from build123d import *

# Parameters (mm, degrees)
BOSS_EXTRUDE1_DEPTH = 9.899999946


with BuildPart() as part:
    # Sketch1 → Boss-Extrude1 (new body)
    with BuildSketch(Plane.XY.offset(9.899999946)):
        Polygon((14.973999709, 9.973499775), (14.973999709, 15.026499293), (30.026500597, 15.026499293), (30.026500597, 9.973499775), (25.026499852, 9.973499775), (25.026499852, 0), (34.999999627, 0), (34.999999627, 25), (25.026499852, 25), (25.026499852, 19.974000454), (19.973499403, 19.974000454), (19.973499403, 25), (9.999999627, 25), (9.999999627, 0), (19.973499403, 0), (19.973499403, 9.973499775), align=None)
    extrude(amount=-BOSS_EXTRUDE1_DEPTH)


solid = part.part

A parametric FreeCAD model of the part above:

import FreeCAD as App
import Part
import Sketcher
from FreeCAD import Vector

doc = App.newDocument("Part")
body = doc.addObject("PartDesign::Body", "Body")

# Sketch on XY plane
sketch1 = body.newObject("Sketcher::SketchObject", "Sketch")
sketch1.AttachmentSupport = (doc.getObject("XY_Plane"), [""])
sketch1.MapMode = "FlatFace"
sketch1.AttachmentOffset = App.Placement(Vector(0, 0, 9.9), App.Rotation())
sketch1.addGeometry([
    Part.LineSegment(Vector(15, 10, 0), Vector(15, 15, 0)),  # 0
    Part.LineSegment(Vector(15, 15, 0), Vector(30, 15, 0)),  # 1
    Part.LineSegment(Vector(30, 15, 0), Vector(30, 10, 0)),  # 2
    Part.LineSegment(Vector(30, 10, 0), Vector(25, 10, 0)),  # 3
    Part.LineSegment(Vector(25, 10, 0), Vector(25, 0, 0)),  # 4
    Part.LineSegment(Vector(25, 0, 0), Vector(35, 0, 0)),  # 5
    Part.LineSegment(Vector(35, 0, 0), Vector(35, 25, 0)),  # 6
    Part.LineSegment(Vector(35, 25, 0), Vector(25, 25, 0)),  # 7
    Part.LineSegment(Vector(25, 25, 0), Vector(25, 20, 0)),  # 8
    Part.LineSegment(Vector(25, 20, 0), Vector(20, 20, 0)),  # 9
    Part.LineSegment(Vector(20, 20, 0), Vector(20, 25, 0)),  # 10
    Part.LineSegment(Vector(20, 25, 0), Vector(10, 25, 0)),  # 11
    Part.LineSegment(Vector(10, 25, 0), Vector(10, 0, 0)),  # 12
    Part.LineSegment(Vector(10, 0, 0), Vector(20, 0, 0)),  # 13
    Part.LineSegment(Vector(20, 0, 0), Vector(20, 10, 0)),  # 14
    Part.LineSegment(Vector(20, 10, 0), Vector(15, 10, 0)),  # 15
], False)
sketch1.addConstraint([
    Sketcher.Constraint("Coincident", 0, 2, 1, 1),
    Sketcher.Constraint("Coincident", 1, 2, 2, 1),
    Sketcher.Constraint("Coincident", 2, 2, 3, 1),
    Sketcher.Constraint("Coincident", 3, 2, 4, 1),
    Sketcher.Constraint("Coincident", 4, 2, 5, 1),
    Sketcher.Constraint("Coincident", 5, 2, 6, 1),
    Sketcher.Constraint("Coincident", 6, 2, 7, 1),
    Sketcher.Constraint("Coincident", 7, 2, 8, 1),
    Sketcher.Constraint("Coincident", 8, 2, 9, 1),
    Sketcher.Constraint("Coincident", 9, 2, 10, 1),
    Sketcher.Constraint("Coincident", 10, 2, 11, 1),
    Sketcher.Constraint("Coincident", 11, 2, 12, 1),
    Sketcher.Constraint("Coincident", 12, 2, 13, 1),
    Sketcher.Constraint("Coincident", 13, 2, 14, 1),
    Sketcher.Constraint("Coincident", 14, 2, 15, 1),
    Sketcher.Constraint("Coincident", 15, 2, 0, 1),
    Sketcher.Constraint("Vertical", 0),
    Sketcher.Constraint("Horizontal", 1),
    Sketcher.Constraint("Vertical", 2),
    Sketcher.Constraint("Horizontal", 3),
    Sketcher.Constraint("Vertical", 4),
    Sketcher.Constraint("Horizontal", 5),
    Sketcher.Constraint("Vertical", 6),
    Sketcher.Constraint("Horizontal", 7),
    Sketcher.Constraint("Vertical", 8),
    Sketcher.Constraint("Horizontal", 9),
    Sketcher.Constraint("Vertical", 10),
    Sketcher.Constraint("Horizontal", 11),
    Sketcher.Constraint("Vertical", 12),
    Sketcher.Constraint("Horizontal", 13),
    Sketcher.Constraint("Vertical", 14),
    Sketcher.Constraint("Horizontal", 15),
    Sketcher.Constraint("PointOnObject", 4, 2, -1),
    Sketcher.Constraint("PointOnObject", 12, 2, -1),
    Sketcher.Constraint("Horizontal", 7, 2, 10, 2),
    Sketcher.Constraint("Horizontal", 3, 2, 14, 2),
    Sketcher.Constraint("Vertical", 4, 2, 7, 2),
    Sketcher.Constraint("Vertical", 10, 2, 13, 2),
    Sketcher.Constraint("Equal", 7, 11),
    Sketcher.Constraint("Equal", 9, 0),
    Sketcher.Constraint("Equal", 13, 4),
    Sketcher.Constraint("DistanceX", 3, 2, 3, 1, 5.000001),
    Sketcher.Constraint("DistanceY", 6, 1, 6, 2, 25.0),
    Sketcher.Constraint("DistanceX", -1, 1, 5, 2, 35.0),
    Sketcher.Constraint("DistanceX", -1, 1, 11, 2, 10.0),
    Sketcher.Constraint("DistanceX", 9, 2, 9, 1, 5.053),
    Sketcher.Constraint("DistanceY", 8, 2, 8, 1, 5.026),
    Sketcher.Constraint("DistanceX", 1, 1, 1, 2, 15.052501),
])
pad1 = body.newObject("PartDesign::Pad", "Pad")
pad1.Profile = sketch1
pad1.Length = 9.9
pad1.Reversed = True

doc.recompute()
